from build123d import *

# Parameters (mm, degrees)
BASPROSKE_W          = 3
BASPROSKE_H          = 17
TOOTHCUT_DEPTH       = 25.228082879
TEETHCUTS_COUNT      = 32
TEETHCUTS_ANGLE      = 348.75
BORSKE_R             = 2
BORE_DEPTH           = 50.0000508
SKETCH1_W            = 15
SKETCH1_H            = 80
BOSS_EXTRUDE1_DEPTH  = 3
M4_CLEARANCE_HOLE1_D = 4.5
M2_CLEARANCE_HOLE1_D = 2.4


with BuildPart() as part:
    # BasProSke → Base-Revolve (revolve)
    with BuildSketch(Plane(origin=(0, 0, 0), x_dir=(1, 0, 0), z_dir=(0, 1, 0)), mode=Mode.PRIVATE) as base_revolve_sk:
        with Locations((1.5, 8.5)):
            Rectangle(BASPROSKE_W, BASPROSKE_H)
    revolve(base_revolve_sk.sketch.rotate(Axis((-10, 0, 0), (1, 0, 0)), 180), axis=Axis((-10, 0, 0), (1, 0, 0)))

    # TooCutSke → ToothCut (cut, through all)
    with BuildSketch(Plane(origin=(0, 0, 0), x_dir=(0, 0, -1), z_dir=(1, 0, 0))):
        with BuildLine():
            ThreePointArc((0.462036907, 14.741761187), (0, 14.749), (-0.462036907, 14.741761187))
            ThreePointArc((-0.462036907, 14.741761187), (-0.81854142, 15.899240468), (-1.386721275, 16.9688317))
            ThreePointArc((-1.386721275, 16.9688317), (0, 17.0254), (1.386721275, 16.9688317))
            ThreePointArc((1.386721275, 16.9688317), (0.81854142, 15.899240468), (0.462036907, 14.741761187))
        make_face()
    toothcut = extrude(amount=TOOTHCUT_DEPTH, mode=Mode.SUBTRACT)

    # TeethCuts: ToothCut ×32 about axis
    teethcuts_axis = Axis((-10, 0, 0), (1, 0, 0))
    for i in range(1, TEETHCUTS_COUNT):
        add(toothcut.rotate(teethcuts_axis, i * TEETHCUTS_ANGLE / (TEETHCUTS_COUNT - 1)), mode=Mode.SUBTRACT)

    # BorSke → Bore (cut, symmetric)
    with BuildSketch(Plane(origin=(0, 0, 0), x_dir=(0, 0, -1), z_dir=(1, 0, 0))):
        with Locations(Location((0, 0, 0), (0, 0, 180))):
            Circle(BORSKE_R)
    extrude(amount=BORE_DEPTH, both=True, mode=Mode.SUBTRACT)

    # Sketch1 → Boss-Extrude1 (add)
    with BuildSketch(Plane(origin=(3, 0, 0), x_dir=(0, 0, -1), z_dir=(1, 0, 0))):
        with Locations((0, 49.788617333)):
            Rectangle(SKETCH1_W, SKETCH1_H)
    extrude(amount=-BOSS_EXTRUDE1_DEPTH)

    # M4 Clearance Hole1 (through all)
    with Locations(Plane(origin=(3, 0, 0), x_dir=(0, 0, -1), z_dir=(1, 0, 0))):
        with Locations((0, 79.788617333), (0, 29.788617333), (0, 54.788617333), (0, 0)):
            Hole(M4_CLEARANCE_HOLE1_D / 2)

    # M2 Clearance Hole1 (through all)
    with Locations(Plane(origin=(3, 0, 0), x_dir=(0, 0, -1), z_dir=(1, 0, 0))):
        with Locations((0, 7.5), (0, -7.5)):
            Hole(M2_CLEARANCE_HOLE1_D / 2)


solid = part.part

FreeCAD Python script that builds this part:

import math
import FreeCAD as App
import Part
import Sketcher

doc = App.newDocument("Part")
body = doc.addObject("PartDesign::Body", "Body")

# Sketch on XZ plane
sketch1 = body.newObject("Sketcher::SketchObject", "Sketch")
sketch1.AttachmentSupport = (doc.getObject("XZ_Plane"), [""])
sketch1.MapMode = "FlatFace"
sketch1.addGeometry([
    Part.LineSegment(App.Vector(0, -17, 0), App.Vector(0, 0, 0)),
    Part.LineSegment(App.Vector(0, 0, 0), App.Vector(3, 0, 0)),
    Part.LineSegment(App.Vector(3, 0, 0), App.Vector(3, -17, 0)),
    Part.LineSegment(App.Vector(3, -17, 0), App.Vector(0, -17, 0)),
], False)
sketch1.addConstraint([
    Sketcher.Constraint("Coincident", 0, 2, 1, 1),
    Sketcher.Constraint("Coincident", 1, 2, 2, 1),
    Sketcher.Constraint("Coincident", 2, 2, 3, 1),
    Sketcher.Constraint("Coincident", 3, 2, 0, 1),
    Sketcher.Constraint("Vertical", 0),
    Sketcher.Constraint("Horizontal", 1),
    Sketcher.Constraint("Vertical", 2),
    Sketcher.Constraint("Horizontal", 3),
    Sketcher.Constraint("Coincident", 0, 2, -1, 1),
    Sketcher.Constraint("DistanceX", 1, 1, 1, 2, 3.0),
    Sketcher.Constraint("DistanceY", 0, 1, 0, 2, 17.0),
])
revolution = body.newObject("PartDesign::Revolution", "Revolution")
revolution.Profile = sketch1
revolution.ReferenceAxis = (sketch1, ["H_Axis"])
revolution.Angle = 360

# Sketch on YZ plane
sketch2 = body.newObject("Sketcher::SketchObject", "Sketch001")
sketch2.AttachmentSupport = (doc.getObject("YZ_Plane"), [""])
sketch2.MapMode = "FlatFace"
sketch2.addGeometry([
    Part.ArcOfCircle(Part.Circle(App.Vector(0, 0, 0), App.Vector(0, 0, 1), 14.7), math.radians(-1.8), math.radians(1.8)),
    Part.ArcOfCircle(Part.Circle(App.Vector(13.4, -6.7, 0), App.Vector(0, 0, 1), 6.4), math.radians(57), math.radians(78)),
    Part.ArcOfCircle(Part.Circle(App.Vector(0, 0, 0), App.Vector(0, 0, 1), 17), math.radians(-4.67), math.radians(4.67)),
    Part.ArcOfCircle(Part.Circle(App.Vector(13.4, 6.7, 0), App.Vector(0, 0, 1), 6.4), math.radians(-78), math.radians(-57)),
], False)
sketch2.addConstraint([
    Sketcher.Constraint("Coincident", 0, 1, 1, 2),
    Sketcher.Constraint("Coincident", 1, 1, 2, 1),
    Sketcher.Constraint("Coincident", 2, 2, 3, 2),
    Sketcher.Constraint("Coincident", 3, 1, 0, 2),
    Sketcher.Constraint("Coincident", 0, 3, -1, 1),
    Sketcher.Constraint("Coincident", 2, 3, -1, 1),
    Sketcher.Constraint("Equal", 1, 3),
    Sketcher.Constraint("Symmetric", 1, 3, 3, 3, -1),
    Sketcher.Constraint("Radius", 1, 6.4),
    Sketcher.Constraint("Radius", 0, 14.749),
    Sketcher.Constraint("Radius", 2, 17.0254),
    Sketcher.Constraint("DistanceX", -1, 1, 1, 3, 13.44508),
    Sketcher.Constraint("DistanceX", -1, 1, 0, 1, 14.741761),
])
pocket1 = body.newObject("PartDesign::Pocket", "Pocket")
pocket1.Profile = sketch2
pocket1.Type = "ThroughAll"
pocket1.Reversed = True
doc.recompute()

polarpattern = body.newObject("PartDesign::PolarPattern", "PolarPattern")
polarpattern.Originals = [pocket1]
polarpattern.Axis = (doc.getObject("X_Axis"), [""])
polarpattern.Angle = 360
polarpattern.Occurrences = 32
body.Tip = polarpattern

# Sketch on YZ plane
sketch3 = body.newObject("Sketcher::SketchObject", "Sketch002")
sketch3.AttachmentSupport = (doc.getObject("YZ_Plane"), [""])
sketch3.MapMode = "FlatFace"
sketch3.addGeometry(Part.Circle(App.Vector(0, 0, 0), App.Vector(0, 0, 1), 2), False)
sketch3.addConstraint([
    Sketcher.Constraint("Coincident", 0, 3, -1, 1),
    Sketcher.Constraint("Diameter", 0, 4.0),
])
pocket2 = body.newObject("PartDesign::Pocket", "Pocket001")
pocket2.Profile = sketch3
pocket2.Length = 100.000102
pocket2.Midplane = True

# Sketch on YZ plane
sketch4 = body.newObject("Sketcher::SketchObject", "Sketch003")
sketch4.AttachmentSupport = (doc.getObject("YZ_Plane"), [""])
sketch4.MapMode = "FlatFace"
sketch4.AttachmentOffset = App.Placement(App.Vector(0, 0, 3), App.Rotation())
sketch4.addGeometry([
    Part.LineSegment(App.Vector(90, 8, 0), App.Vector(10, 8, 0)),
    Part.LineSegment(App.Vector(10, 8, 0), App.Vector(10, -8, 0)),
    Part.LineSegment(App.Vector(10, -8, 0), App.Vector(90, -8, 0)),
    Part.LineSegment(App.Vector(90, -8, 0), App.Vector(90, 8, 0)),
], False)
sketch4.addConstraint([
    Sketcher.Constraint("Coincident", 0, 2, 1, 1),
    Sketcher.Constraint("Coincident", 1, 2, 2, 1),
    Sketcher.Constraint("Coincident", 2, 2, 3, 1),
    Sketcher.Constraint("Coincident", 3, 2, 0, 1),
    Sketcher.Constraint("Horizontal", 0),
    Sketcher.Constraint("Vertical", 1),
    Sketcher.Constraint("Horizontal", 2),
    Sketcher.Constraint("Vertical", 3),
    Sketcher.Constraint("DistanceX", 0, 2, 0, 1, 80.0),
    Sketcher.Constraint("DistanceY", 1, 2, 1, 1, 15.0),
    Sketcher.Constraint("DistanceY", -1, 1, 0, 2, 7.5),
    Sketcher.Constraint("DistanceX", -1, 1, 0, 2, 9.788617),
])
pad1 = body.newObject("PartDesign::Pad", "Pad")
pad1.Profile = sketch4
pad1.Length = 3
pad1.Reversed = True

# Sketch on YZ plane
sketch5 = body.newObject("Sketcher::SketchObject", "Sketch004")
sketch5.AttachmentSupport = (doc.getObject("YZ_Plane"), [""])
sketch5.MapMode = "FlatFace"
sketch5.AttachmentOffset = App.Placement(App.Vector(0, 0, 3), App.Rotation())
sketch5.addGeometry([
    Part.Circle(App.Vector(79.8, 0, 0), App.Vector(0, 0, 1), 2.2),
    Part.Circle(App.Vector(29.8, 0, 0), App.Vector(0, 0, 1), 2.2),
    Part.Circle(App.Vector(54.8, 0, 0), App.Vector(0, 0, 1), 2.2),
    Part.Circle(App.Vector(0, 0, 0), App.Vector(0, 0, 1), 2.2),
], False)
sketch5.addConstraint([
    Sketcher.Constraint("Coincident", 3, 3, -1, 1),
    Sketcher.Constraint("Equal", 0, 1),
    Sketcher.Constraint("Equal", 1, 2),
    Sketcher.Constraint("Equal", 2, 3),
    Sketcher.Constraint("PointOnObject", 0, 3, -1),
    Sketcher.Constraint("PointOnObject", 1, 3, -1),
    Sketcher.Constraint("PointOnObject", 2, 3, -1),
    Sketcher.Constraint("Diameter", 0, 4.5),
    Sketcher.Constraint("DistanceX", 1, 3, 0, 3, 50.0),
    Sketcher.Constraint("DistanceX", 1, 3, 2, 3, 25.0),
    Sketcher.Constraint("DistanceX", -1, 1, 0, 3, 79.788617),
])
doc.recompute()
hole = body.newObject("PartDesign::Hole", "Hole")
hole.Profile = sketch5
hole.ThreadType = "None"
hole.Diameter = 4.5
hole.DepthType = "ThroughAll"

# Sketch on YZ plane
sketch6 = body.newObject("Sketcher::SketchObject", "Sketch005")
sketch6.AttachmentSupport = (doc.getObject("YZ_Plane"), [""])
sketch6.MapMode = "FlatFace"
sketch6.AttachmentOffset = App.Placement(App.Vector(0, 0, 3), App.Rotation())
sketch6.addGeometry([
    Part.Circle(App.Vector(7.5, 0, 0), App.Vector(0, 0, 1), 1.2),
    Part.Circle(App.Vector(-7.5, 0, 0), App.Vector(0, 0, 1), 1.2),
], False)
sketch6.addConstraint([
    Sketcher.Constraint("Equal", 0, 1),
    Sketcher.Constraint("Symmetric", 0, 3, 1, 3, -1, 1),
    Sketcher.Constraint("PointOnObject", 0, 3, -1),
    Sketcher.Constraint("Diameter", 0, 2.4),
    Sketcher.Constraint("DistanceX", 1, 3, 0, 3, 15.0),
])
doc.recompute()
hole2 = body.newObject("PartDesign::Hole", "Hole001")
hole2.Profile = sketch6
hole2.ThreadType = "None"
hole2.Diameter = 2.4
hole2.DepthType = "ThroughAll"

doc.recompute()
